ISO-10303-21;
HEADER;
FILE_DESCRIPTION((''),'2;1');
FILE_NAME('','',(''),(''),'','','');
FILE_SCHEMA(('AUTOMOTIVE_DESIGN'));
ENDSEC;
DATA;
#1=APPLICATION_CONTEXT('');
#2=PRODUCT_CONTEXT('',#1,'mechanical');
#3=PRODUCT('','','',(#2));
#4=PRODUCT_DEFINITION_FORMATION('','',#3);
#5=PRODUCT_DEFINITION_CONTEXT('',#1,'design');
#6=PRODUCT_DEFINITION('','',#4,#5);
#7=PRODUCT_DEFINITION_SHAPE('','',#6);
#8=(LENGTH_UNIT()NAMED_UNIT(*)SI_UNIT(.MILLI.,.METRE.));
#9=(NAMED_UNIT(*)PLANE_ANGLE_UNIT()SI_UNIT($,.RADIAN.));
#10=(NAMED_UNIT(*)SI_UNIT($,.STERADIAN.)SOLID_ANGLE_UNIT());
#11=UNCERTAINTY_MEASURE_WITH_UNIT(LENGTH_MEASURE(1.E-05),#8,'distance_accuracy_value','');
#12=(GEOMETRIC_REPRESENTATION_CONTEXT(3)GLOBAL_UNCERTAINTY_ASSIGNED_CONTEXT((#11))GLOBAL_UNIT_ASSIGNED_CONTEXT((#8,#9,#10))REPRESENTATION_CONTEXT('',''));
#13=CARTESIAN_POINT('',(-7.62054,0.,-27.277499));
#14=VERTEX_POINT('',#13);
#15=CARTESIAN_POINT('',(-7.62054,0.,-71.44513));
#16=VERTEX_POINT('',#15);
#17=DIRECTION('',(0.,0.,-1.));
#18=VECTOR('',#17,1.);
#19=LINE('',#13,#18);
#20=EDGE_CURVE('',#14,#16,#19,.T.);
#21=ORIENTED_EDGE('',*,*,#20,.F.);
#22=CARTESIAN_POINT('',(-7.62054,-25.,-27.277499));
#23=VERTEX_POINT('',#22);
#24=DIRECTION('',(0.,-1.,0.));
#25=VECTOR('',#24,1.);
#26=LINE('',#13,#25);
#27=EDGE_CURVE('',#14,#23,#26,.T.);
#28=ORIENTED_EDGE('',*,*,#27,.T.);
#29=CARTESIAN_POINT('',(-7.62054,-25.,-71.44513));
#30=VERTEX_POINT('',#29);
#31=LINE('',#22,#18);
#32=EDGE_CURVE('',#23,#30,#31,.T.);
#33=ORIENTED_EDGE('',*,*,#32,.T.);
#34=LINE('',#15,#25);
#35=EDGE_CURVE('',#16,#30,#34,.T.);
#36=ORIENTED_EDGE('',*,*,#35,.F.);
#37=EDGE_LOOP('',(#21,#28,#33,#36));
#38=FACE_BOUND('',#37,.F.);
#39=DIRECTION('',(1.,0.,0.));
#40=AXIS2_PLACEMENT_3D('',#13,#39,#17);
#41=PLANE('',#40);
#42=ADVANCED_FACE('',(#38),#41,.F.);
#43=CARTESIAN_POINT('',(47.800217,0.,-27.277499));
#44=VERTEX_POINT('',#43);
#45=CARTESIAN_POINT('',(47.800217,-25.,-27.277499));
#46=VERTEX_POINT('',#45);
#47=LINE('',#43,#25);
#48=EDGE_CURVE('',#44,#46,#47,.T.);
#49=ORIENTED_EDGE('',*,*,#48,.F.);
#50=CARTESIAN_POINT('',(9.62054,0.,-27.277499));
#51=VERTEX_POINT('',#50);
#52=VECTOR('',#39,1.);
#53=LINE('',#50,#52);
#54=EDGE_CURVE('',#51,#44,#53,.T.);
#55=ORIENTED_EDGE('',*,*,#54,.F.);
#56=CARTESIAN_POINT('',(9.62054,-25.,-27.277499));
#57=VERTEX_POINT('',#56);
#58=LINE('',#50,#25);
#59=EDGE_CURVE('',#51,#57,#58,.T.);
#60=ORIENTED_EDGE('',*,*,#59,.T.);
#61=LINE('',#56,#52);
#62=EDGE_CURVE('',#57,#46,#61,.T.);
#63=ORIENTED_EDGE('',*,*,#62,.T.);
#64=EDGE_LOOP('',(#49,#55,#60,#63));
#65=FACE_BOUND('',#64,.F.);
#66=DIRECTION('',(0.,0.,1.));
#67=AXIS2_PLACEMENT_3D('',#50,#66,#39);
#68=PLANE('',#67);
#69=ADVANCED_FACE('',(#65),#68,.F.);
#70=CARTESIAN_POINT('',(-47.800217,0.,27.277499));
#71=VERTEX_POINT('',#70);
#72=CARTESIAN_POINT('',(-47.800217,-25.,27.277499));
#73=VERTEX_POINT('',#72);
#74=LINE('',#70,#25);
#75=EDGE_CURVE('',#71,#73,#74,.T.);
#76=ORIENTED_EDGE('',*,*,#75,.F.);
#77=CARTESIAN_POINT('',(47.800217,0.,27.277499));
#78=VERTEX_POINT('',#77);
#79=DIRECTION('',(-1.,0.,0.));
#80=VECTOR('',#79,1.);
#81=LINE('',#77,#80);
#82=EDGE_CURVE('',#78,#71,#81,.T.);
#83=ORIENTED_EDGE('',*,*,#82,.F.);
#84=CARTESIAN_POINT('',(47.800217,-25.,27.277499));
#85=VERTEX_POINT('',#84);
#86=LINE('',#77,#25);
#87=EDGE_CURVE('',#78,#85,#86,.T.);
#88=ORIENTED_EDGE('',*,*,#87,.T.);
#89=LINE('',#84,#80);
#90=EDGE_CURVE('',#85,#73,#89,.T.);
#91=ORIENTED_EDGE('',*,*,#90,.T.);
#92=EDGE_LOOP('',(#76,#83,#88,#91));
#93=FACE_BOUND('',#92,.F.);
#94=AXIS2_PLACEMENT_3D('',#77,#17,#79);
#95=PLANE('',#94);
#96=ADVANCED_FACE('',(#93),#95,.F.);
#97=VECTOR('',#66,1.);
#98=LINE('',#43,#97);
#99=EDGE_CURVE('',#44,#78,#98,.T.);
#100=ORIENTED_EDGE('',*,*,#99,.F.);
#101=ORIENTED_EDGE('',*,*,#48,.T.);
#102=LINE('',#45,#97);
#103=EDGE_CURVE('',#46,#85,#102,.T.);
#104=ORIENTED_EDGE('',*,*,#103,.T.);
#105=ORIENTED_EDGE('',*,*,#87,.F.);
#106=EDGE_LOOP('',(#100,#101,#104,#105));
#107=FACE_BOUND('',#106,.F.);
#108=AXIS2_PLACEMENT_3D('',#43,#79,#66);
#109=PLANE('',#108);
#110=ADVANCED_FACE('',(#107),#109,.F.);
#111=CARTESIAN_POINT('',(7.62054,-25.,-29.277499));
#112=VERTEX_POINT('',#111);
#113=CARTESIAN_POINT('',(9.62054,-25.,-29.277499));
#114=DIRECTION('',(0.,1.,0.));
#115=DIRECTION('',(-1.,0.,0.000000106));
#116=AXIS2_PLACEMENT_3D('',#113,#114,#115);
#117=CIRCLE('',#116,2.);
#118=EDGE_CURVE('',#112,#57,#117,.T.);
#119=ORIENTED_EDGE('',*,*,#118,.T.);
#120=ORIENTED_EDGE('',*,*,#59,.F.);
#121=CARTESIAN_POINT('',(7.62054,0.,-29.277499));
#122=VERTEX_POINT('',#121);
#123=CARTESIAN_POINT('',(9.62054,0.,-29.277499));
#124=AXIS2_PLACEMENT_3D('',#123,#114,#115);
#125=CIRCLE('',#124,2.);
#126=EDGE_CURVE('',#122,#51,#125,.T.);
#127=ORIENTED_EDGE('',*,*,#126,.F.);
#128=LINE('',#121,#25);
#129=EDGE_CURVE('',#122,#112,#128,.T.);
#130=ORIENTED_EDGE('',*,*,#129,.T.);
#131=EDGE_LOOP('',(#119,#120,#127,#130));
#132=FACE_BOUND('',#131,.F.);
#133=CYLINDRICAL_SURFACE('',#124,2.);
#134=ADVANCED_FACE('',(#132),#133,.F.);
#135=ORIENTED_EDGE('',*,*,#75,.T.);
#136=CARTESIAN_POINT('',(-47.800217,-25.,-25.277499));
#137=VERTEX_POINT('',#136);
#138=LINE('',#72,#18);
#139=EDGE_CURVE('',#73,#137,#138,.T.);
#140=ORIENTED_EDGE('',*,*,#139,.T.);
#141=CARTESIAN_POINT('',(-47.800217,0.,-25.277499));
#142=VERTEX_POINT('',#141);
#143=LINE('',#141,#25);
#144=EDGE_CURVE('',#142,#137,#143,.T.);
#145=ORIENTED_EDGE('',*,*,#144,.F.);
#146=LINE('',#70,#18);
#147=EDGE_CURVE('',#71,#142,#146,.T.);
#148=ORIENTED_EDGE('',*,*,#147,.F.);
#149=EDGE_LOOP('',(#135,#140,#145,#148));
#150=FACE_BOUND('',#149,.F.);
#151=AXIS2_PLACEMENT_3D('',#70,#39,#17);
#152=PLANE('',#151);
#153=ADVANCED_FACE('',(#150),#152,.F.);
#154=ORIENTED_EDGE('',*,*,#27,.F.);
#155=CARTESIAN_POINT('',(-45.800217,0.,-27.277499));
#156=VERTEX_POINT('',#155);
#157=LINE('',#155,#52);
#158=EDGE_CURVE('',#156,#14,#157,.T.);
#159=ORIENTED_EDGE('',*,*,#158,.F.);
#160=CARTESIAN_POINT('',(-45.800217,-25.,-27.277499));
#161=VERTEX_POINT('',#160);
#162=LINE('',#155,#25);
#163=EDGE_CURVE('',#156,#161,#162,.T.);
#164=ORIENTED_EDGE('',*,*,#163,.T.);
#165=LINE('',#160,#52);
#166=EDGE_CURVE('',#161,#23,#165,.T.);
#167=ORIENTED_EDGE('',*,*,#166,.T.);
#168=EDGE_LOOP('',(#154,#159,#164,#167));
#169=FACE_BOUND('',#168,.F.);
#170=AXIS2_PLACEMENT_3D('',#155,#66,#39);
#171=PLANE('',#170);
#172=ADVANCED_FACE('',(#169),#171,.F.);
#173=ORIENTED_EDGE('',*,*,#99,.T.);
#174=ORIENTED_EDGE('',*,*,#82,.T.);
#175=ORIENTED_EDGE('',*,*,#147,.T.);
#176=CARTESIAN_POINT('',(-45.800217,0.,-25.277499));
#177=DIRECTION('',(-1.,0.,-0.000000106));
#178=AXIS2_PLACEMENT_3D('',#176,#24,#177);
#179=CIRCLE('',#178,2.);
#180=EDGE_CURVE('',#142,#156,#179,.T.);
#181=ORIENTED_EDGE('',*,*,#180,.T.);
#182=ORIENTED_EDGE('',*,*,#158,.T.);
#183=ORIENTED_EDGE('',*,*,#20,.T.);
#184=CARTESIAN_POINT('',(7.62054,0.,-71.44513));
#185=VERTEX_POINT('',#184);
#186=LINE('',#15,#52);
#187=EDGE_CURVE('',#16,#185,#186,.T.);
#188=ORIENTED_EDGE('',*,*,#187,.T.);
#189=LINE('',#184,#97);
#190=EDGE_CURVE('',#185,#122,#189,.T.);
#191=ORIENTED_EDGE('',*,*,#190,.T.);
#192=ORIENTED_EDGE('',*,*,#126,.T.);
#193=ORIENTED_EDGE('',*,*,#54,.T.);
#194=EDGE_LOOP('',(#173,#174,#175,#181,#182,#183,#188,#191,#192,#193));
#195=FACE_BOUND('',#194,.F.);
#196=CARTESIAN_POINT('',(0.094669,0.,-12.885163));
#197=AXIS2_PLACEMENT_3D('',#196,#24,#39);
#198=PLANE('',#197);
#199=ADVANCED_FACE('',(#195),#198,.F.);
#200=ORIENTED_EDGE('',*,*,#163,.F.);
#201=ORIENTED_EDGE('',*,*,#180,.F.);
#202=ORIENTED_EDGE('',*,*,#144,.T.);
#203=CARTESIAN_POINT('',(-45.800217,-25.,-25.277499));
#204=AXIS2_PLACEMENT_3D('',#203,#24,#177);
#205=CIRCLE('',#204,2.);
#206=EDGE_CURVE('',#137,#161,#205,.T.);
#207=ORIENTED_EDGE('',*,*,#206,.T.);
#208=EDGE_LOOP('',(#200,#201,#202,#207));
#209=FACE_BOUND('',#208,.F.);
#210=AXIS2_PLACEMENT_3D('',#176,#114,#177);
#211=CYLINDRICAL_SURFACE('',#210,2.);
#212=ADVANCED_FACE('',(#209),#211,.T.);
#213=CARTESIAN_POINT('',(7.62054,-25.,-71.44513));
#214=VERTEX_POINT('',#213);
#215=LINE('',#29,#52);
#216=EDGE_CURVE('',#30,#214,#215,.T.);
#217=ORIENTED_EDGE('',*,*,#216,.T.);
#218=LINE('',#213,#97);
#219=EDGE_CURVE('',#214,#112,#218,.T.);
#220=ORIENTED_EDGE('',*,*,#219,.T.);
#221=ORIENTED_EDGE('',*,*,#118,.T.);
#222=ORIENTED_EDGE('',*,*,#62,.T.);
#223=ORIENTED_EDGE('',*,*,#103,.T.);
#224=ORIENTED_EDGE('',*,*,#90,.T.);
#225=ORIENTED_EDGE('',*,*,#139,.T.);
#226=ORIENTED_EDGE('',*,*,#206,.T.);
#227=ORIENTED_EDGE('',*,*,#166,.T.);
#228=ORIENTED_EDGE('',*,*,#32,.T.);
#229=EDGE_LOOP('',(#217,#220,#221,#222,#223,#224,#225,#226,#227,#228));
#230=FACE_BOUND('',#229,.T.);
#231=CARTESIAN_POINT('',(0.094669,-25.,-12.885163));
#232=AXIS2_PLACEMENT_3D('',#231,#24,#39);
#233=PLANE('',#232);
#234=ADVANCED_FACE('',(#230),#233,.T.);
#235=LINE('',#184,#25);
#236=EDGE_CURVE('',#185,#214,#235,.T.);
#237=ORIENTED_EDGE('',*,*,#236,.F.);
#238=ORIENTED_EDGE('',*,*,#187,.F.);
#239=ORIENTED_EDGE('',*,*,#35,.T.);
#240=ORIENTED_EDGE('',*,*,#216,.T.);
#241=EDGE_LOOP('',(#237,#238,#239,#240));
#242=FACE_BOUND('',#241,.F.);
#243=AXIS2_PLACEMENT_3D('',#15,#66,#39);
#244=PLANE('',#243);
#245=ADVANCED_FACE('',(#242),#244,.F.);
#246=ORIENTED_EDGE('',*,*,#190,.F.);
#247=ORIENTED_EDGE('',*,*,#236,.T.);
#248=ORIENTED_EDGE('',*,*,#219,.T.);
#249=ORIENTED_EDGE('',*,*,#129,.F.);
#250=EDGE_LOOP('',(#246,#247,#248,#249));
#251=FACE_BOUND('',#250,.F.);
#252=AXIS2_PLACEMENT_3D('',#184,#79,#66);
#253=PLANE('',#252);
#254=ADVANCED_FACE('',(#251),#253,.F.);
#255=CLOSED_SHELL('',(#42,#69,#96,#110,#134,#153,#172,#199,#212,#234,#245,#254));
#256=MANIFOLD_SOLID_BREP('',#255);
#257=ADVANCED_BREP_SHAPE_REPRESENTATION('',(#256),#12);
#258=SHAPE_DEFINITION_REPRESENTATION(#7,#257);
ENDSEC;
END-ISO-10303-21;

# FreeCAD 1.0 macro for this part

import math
import FreeCAD as App
import Part
import Sketcher
from FreeCAD import Vector
Q = App.Units.Quantity

doc = App.newDocument("Part")
body = doc.addObject("PartDesign::Body", "Body")

sketch1 = body.newObject("Sketcher::SketchObject", "Sketch")
sketch1.AttachmentSupport = (doc.getObject("XZ_Plane"), [""])
sketch1.MapMode = "FlatFace"
sketch1.addGeometry([
    Part.LineSegment(Vector(9.6, -27.3, 0), Vector(47.8, -27.3, 0)),
    Part.LineSegment(Vector(47.8, -27.3, 0), Vector(47.8, 27.3, 0)),
    Part.LineSegment(Vector(47.8, 27.3, 0), Vector(-47.8, 27.3, 0)),
    Part.LineSegment(Vector(-47.8, 27.3, 0), Vector(-47.8, -25.3, 0)),
    Part.ArcOfCircle(Part.Circle(Vector(-45.8, -25.3, 0), Vector(0, 0, 1), 2), math.radians(-180), math.radians(-90)),
    Part.LineSegment(Vector(-45.8, -27.3, 0), Vector(-7.6, -27.3, 0)),
    Part.LineSegment(Vector(-7.6, -27.3, 0), Vector(-7.6, -71.4, 0)),
    Part.LineSegment(Vector(-7.6, -71.4, 0), Vector(7.6, -71.4, 0)),
    Part.LineSegment(Vector(7.6, -71.4, 0), Vector(7.6, -29.3, 0)),
    Part.ArcOfCircle(Part.Circle(Vector(9.6, -29.3, 0), Vector(0, 0, 1), 2), math.radians(90), math.radians(180)),
], False)
sketch1.addConstraint([
    Sketcher.Constraint("Coincident", 0, 2, 1, 1),
    Sketcher.Constraint("Coincident", 1, 2, 2, 1),
    Sketcher.Constraint("Coincident", 2, 2, 3, 1),
    Sketcher.Constraint("Tangent", 3, 2, 4, 1),
    Sketcher.Constraint("Tangent", 4, 2, 5, 1),
    Sketcher.Constraint("Coincident", 5, 2, 6, 1),
    Sketcher.Constraint("Coincident", 6, 2, 7, 1),
    Sketcher.Constraint("Coincident", 7, 2, 8, 1),
    Sketcher.Constraint("Tangent", 8, 2, 9, 2),
    Sketcher.Constraint("Tangent", 9, 1, 0, 1),
    Sketcher.Constraint("Horizontal", 0),
    Sketcher.Constraint("Vertical", 1),
    Sketcher.Constraint("Horizontal", 2),
    Sketcher.Constraint("Vertical", 3),
    Sketcher.Constraint("Horizontal", 5),
    Sketcher.Constraint("Vertical", 6),
    Sketcher.Constraint("Horizontal", 7),
    Sketcher.Constraint("Vertical", 8),
    Sketcher.Constraint("Equal", 4, 9),
    Sketcher.Constraint("Symmetric", 0, 2, 2, 2, -1, 1),
    Sketcher.Constraint("Horizontal", 0, 2, 4, 2),
    Sketcher.Constraint("Equal", 0, 5),
    Sketcher.Constraint("Radius", 4, Q("2 mm")),
    Sketcher.Constraint("DistanceY", 9, 3, 1, 2, Q("56.554998 mm")),
    Sketcher.Constraint("DistanceX", 7, 1, 7, 2, Q("15.24108 mm")),
    Sketcher.Constraint("DistanceY", 6, 2, 6, 1, Q("44.167631 mm")),
    Sketcher.Constraint("DistanceX", 0, 1, 0, 2, Q("38.179677 mm")),
])
pad1 = body.newObject("PartDesign::Pad", "Pad")
pad1.Profile = sketch1
pad1.Length = 25

doc.recompute()
